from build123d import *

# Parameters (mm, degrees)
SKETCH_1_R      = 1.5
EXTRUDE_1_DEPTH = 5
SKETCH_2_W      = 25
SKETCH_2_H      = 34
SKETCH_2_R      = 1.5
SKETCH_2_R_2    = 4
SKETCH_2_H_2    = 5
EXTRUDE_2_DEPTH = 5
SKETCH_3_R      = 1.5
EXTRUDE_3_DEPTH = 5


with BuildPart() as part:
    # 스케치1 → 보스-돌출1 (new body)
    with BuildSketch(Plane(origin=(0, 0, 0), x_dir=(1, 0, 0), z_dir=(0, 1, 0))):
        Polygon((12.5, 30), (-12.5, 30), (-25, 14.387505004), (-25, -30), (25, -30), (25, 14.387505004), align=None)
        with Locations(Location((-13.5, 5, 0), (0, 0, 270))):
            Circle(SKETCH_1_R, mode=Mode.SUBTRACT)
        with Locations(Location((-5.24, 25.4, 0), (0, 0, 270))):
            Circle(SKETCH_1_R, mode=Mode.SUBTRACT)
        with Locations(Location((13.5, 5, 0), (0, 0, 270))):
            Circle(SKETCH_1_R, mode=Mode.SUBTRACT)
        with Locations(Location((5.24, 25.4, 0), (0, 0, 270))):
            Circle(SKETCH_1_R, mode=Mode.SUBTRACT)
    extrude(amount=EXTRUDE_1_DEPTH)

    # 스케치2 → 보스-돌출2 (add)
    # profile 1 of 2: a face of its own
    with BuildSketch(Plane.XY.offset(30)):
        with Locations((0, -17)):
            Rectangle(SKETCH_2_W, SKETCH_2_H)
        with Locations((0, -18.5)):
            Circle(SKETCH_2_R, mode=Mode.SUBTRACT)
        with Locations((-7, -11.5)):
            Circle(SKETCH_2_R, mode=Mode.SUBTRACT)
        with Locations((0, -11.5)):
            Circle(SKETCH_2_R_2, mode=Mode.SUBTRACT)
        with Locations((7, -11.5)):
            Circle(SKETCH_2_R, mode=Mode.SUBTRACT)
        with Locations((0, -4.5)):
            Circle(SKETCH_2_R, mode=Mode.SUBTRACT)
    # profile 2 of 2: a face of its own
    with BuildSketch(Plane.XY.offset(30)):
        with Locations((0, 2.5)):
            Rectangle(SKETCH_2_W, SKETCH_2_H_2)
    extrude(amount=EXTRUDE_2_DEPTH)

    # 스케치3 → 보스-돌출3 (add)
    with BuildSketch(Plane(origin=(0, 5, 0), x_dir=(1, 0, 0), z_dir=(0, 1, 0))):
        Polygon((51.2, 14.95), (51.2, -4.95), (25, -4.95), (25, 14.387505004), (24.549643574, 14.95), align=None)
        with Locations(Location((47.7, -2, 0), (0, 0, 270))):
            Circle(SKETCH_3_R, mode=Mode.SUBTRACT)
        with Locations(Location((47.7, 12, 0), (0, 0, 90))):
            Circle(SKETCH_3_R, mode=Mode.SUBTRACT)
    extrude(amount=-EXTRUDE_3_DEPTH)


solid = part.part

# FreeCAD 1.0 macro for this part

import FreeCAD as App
import Part
import Sketcher
from FreeCAD import Vector
Q = App.Units.Quantity


def add_polygon(sketch, points):
    """Adds a closed chain of lines whose ends are joined by coincident constraints."""
    first, n = sketch.GeometryCount, len(points)
    for a, b in zip(points, points[1:] + points[:1]):
        sketch.addGeometry(Part.LineSegment(App.Vector(*a, 0), App.Vector(*b, 0)), False)
    for i in range(n):
        sketch.addConstraint(Sketcher.Constraint("Coincident", first + i, 2, first + (i + 1) % n, 1))

doc = App.newDocument("Part")
body = doc.addObject("PartDesign::Body", "Body")

sketch1 = body.newObject("Sketcher::SketchObject", "Sketch")
sketch1.AttachmentSupport = (doc.getObject("XZ_Plane"), [""])
sketch1.MapMode = "FlatFace"
add_polygon(sketch1, [(12.5, -30), (-12.5, -30), (-25, -14.4), (-25, 30), (25, 30), (25, -14.4)])
sketch1.addGeometry(Part.Circle(Vector(-13.5, -5, 0), Vector(0, 0, 1), 1.5), False)
sketch1.addGeometry(Part.Circle(Vector(13.5, -5, 0), Vector(0, 0, 1), 1.5), False)
sketch1.addGeometry(Part.Circle(Vector(-5.2, -25.4, 0), Vector(0, 0, 1), 1.5), False)
sketch1.addGeometry(Part.Circle(Vector(5.2, -25.4, 0), Vector(0, 0, 1), 1.5), False)
sketch1.addConstraint([
    Sketcher.Constraint("Horizontal", 0),
    Sketcher.Constraint("Vertical", 2),
    Sketcher.Constraint("Horizontal", 3),
    Sketcher.Constraint("Vertical", 4),
    Sketcher.Constraint("Equal", 6, 7),
    Sketcher.Constraint("Equal", 7, 8),
    Sketcher.Constraint("Equal", 8, 9),
    Sketcher.Constraint("Symmetric", 6, 3, 7, 3, -2),
    Sketcher.Constraint("Symmetric", 8, 3, 9, 3, -2),
    Sketcher.Constraint("Symmetric", 1, 2, 4, 2, -2),
    Sketcher.Constraint("Equal", 1, 5),
    Sketcher.Constraint("Diameter", 6, Q("3 mm")),
    Sketcher.Constraint("DistanceX", 0, 2, 0, 1, Q("25 mm")),
    Sketcher.Constraint("DistanceX", 3, 1, 3, 2, Q("50 mm")),
    Sketcher.Constraint("Distance", 1, Q("20 mm")),
    Sketcher.Constraint("DistanceY", 6, 3, -1, 1, Q("5 mm")),
    Sketcher.Constraint("DistanceY", 0, 2, -1, 1, Q("30 mm")),
    Sketcher.Constraint("DistanceY", -1, 1, 2, 2, Q("30 mm")),
    Sketcher.Constraint("DistanceX", 6, 3, 7, 3, Q("27 mm")),
    Sketcher.Constraint("DistanceY", 8, 3, -1, 1, Q("25.4 mm")),
    Sketcher.Constraint("DistanceX", 8, 3, -1, 1, Q("5.24 mm")),
])
pad1 = body.newObject("PartDesign::Pad", "Pad")
pad1.Profile = sketch1
pad1.Length = 5
pad1.Reversed = True

sketch2 = body.newObject("Sketcher::SketchObject", "Sketch001")
sketch2.AttachmentSupport = (doc.getObject("XY_Plane"), [""])
sketch2.MapMode = "FlatFace"
sketch2.AttachmentOffset = App.Placement(Vector(0, 0, 30), App.Rotation())
add_polygon(sketch2, [(-12.5, -34), (12.5, -34), (12.5, 5), (-12.5, 5)])
sketch2.addGeometry(Part.Circle(Vector(0, -18.5, 0), Vector(0, 0, 1), 1.5), False)
sketch2.addGeometry(Part.Circle(Vector(-7, -11.5, 0), Vector(0, 0, 1), 1.5), False)
sketch2.addGeometry(Part.Circle(Vector(0, -11.5, 0), Vector(0, 0, 1), 4), False)
sketch2.addGeometry(Part.Circle(Vector(7, -11.5, 0), Vector(0, 0, 1), 1.5), False)
sketch2.addGeometry(Part.Circle(Vector(0, -4.5, 0), Vector(0, 0, 1), 1.5), False)
sketch2.addConstraint([
    Sketcher.Constraint("Horizontal", 0),
    Sketcher.Constraint("Vertical", 1),
    Sketcher.Constraint("Horizontal", 2),
    Sketcher.Constraint("Vertical", 3),
    Sketcher.Constraint("Equal", 4, 5),
    Sketcher.Constraint("Equal", 5, 7),
    Sketcher.Constraint("Equal", 7, 8),
    Sketcher.Constraint("Symmetric", 5, 3, 7, 3, -2),
    Sketcher.Constraint("PointOnObject", 4, 3, -2),
    Sketcher.Constraint("PointOnObject", 6, 3, -2),
    Sketcher.Constraint("PointOnObject", 8, 3, -2),
    Sketcher.Constraint("Horizontal", 5, 3, 6, 3),
    Sketcher.Constraint("Diameter", 4, Q("3 mm")),
    Sketcher.Constraint("Diameter", 6, Q("8 mm")),
    Sketcher.Constraint("DistanceX", 0, 1, 0, 2, Q("25 mm")),
    Sketcher.Constraint("DistanceY", 1, 1, 1, 2, Q("39 mm")),
    Sketcher.Constraint("DistanceX", 5, 3, -1, 1, Q("7 mm")),
    Sketcher.Constraint("DistanceY", 0, 2, -1, 1, Q("34 mm")),
    Sketcher.Constraint("DistanceY", 4, 3, 5, 3, Q("7 mm")),
    Sketcher.Constraint("DistanceY", 6, 3, 8, 3, Q("7 mm")),
    Sketcher.Constraint("DistanceY", 4, 3, -1, 1, Q("18.5 mm")),
    Sketcher.Constraint("DistanceX", -1, 1, 0, 2, Q("12.5 mm")),
])
pad2 = body.newObject("PartDesign::Pad", "Pad001")
pad2.Profile = sketch2
pad2.Length = 5

sketch3 = body.newObject("Sketcher::SketchObject", "Sketch002")
sketch3.AttachmentSupport = (doc.getObject("XZ_Plane"), [""])
sketch3.MapMode = "FlatFace"
sketch3.AttachmentOffset = App.Placement(Vector(0, 0, -5), App.Rotation())
add_polygon(sketch3, [(51.2, 5), (51.2, -14.9), (24.5, -14.9), (25, -14.4), (25, 5)])
sketch3.addGeometry(Part.Circle(Vector(47.7, 2, 0), Vector(0, 0, 1), 1.5), False)
sketch3.addGeometry(Part.Circle(Vector(47.7, -12, 0), Vector(0, 0, 1), 1.5), False)
sketch3.addConstraint([
    Sketcher.Constraint("Vertical", 0),
    Sketcher.Constraint("Horizontal", 1),
    Sketcher.Constraint("Vertical", 3),
    Sketcher.Constraint("Horizontal", 4),
    Sketcher.Constraint("Equal", 5, 6),
    Sketcher.Constraint("Vertical", 5, 3, 6, 3),
    Sketcher.Constraint("Diameter", 5, Q("3 mm")),
    Sketcher.Constraint("DistanceX", 4, 1, 4, 2, Q("26.2 mm")),
    Sketcher.Constraint("DistanceY", 0, 2, 0, 1, Q("19.9 mm")),
    Sketcher.Constraint("DistanceY", -1, 1, 5, 3, Q("2 mm")),
    Sketcher.Constraint("DistanceY", 6, 3, -1, 1, Q("12 mm")),
    Sketcher.Constraint("DistanceX", -1, 1, 2, 2, Q("25 mm")),
    Sketcher.Constraint("DistanceX", -1, 1, 5, 3, Q("47.7 mm")),
    Sketcher.Constraint("DistanceY", 0, 2, -1, 1, Q("14.95 mm")),
    Sketcher.Constraint("Distance", 2, Q("0.72057 mm")),
    Sketcher.Constraint("DistanceX", 1, 2, 1, 1, Q("26.650356 mm")),
])
pad3 = body.newObject("PartDesign::Pad", "Pad002")
pad3.Profile = sketch3
pad3.Length = 5

doc.recompute()
